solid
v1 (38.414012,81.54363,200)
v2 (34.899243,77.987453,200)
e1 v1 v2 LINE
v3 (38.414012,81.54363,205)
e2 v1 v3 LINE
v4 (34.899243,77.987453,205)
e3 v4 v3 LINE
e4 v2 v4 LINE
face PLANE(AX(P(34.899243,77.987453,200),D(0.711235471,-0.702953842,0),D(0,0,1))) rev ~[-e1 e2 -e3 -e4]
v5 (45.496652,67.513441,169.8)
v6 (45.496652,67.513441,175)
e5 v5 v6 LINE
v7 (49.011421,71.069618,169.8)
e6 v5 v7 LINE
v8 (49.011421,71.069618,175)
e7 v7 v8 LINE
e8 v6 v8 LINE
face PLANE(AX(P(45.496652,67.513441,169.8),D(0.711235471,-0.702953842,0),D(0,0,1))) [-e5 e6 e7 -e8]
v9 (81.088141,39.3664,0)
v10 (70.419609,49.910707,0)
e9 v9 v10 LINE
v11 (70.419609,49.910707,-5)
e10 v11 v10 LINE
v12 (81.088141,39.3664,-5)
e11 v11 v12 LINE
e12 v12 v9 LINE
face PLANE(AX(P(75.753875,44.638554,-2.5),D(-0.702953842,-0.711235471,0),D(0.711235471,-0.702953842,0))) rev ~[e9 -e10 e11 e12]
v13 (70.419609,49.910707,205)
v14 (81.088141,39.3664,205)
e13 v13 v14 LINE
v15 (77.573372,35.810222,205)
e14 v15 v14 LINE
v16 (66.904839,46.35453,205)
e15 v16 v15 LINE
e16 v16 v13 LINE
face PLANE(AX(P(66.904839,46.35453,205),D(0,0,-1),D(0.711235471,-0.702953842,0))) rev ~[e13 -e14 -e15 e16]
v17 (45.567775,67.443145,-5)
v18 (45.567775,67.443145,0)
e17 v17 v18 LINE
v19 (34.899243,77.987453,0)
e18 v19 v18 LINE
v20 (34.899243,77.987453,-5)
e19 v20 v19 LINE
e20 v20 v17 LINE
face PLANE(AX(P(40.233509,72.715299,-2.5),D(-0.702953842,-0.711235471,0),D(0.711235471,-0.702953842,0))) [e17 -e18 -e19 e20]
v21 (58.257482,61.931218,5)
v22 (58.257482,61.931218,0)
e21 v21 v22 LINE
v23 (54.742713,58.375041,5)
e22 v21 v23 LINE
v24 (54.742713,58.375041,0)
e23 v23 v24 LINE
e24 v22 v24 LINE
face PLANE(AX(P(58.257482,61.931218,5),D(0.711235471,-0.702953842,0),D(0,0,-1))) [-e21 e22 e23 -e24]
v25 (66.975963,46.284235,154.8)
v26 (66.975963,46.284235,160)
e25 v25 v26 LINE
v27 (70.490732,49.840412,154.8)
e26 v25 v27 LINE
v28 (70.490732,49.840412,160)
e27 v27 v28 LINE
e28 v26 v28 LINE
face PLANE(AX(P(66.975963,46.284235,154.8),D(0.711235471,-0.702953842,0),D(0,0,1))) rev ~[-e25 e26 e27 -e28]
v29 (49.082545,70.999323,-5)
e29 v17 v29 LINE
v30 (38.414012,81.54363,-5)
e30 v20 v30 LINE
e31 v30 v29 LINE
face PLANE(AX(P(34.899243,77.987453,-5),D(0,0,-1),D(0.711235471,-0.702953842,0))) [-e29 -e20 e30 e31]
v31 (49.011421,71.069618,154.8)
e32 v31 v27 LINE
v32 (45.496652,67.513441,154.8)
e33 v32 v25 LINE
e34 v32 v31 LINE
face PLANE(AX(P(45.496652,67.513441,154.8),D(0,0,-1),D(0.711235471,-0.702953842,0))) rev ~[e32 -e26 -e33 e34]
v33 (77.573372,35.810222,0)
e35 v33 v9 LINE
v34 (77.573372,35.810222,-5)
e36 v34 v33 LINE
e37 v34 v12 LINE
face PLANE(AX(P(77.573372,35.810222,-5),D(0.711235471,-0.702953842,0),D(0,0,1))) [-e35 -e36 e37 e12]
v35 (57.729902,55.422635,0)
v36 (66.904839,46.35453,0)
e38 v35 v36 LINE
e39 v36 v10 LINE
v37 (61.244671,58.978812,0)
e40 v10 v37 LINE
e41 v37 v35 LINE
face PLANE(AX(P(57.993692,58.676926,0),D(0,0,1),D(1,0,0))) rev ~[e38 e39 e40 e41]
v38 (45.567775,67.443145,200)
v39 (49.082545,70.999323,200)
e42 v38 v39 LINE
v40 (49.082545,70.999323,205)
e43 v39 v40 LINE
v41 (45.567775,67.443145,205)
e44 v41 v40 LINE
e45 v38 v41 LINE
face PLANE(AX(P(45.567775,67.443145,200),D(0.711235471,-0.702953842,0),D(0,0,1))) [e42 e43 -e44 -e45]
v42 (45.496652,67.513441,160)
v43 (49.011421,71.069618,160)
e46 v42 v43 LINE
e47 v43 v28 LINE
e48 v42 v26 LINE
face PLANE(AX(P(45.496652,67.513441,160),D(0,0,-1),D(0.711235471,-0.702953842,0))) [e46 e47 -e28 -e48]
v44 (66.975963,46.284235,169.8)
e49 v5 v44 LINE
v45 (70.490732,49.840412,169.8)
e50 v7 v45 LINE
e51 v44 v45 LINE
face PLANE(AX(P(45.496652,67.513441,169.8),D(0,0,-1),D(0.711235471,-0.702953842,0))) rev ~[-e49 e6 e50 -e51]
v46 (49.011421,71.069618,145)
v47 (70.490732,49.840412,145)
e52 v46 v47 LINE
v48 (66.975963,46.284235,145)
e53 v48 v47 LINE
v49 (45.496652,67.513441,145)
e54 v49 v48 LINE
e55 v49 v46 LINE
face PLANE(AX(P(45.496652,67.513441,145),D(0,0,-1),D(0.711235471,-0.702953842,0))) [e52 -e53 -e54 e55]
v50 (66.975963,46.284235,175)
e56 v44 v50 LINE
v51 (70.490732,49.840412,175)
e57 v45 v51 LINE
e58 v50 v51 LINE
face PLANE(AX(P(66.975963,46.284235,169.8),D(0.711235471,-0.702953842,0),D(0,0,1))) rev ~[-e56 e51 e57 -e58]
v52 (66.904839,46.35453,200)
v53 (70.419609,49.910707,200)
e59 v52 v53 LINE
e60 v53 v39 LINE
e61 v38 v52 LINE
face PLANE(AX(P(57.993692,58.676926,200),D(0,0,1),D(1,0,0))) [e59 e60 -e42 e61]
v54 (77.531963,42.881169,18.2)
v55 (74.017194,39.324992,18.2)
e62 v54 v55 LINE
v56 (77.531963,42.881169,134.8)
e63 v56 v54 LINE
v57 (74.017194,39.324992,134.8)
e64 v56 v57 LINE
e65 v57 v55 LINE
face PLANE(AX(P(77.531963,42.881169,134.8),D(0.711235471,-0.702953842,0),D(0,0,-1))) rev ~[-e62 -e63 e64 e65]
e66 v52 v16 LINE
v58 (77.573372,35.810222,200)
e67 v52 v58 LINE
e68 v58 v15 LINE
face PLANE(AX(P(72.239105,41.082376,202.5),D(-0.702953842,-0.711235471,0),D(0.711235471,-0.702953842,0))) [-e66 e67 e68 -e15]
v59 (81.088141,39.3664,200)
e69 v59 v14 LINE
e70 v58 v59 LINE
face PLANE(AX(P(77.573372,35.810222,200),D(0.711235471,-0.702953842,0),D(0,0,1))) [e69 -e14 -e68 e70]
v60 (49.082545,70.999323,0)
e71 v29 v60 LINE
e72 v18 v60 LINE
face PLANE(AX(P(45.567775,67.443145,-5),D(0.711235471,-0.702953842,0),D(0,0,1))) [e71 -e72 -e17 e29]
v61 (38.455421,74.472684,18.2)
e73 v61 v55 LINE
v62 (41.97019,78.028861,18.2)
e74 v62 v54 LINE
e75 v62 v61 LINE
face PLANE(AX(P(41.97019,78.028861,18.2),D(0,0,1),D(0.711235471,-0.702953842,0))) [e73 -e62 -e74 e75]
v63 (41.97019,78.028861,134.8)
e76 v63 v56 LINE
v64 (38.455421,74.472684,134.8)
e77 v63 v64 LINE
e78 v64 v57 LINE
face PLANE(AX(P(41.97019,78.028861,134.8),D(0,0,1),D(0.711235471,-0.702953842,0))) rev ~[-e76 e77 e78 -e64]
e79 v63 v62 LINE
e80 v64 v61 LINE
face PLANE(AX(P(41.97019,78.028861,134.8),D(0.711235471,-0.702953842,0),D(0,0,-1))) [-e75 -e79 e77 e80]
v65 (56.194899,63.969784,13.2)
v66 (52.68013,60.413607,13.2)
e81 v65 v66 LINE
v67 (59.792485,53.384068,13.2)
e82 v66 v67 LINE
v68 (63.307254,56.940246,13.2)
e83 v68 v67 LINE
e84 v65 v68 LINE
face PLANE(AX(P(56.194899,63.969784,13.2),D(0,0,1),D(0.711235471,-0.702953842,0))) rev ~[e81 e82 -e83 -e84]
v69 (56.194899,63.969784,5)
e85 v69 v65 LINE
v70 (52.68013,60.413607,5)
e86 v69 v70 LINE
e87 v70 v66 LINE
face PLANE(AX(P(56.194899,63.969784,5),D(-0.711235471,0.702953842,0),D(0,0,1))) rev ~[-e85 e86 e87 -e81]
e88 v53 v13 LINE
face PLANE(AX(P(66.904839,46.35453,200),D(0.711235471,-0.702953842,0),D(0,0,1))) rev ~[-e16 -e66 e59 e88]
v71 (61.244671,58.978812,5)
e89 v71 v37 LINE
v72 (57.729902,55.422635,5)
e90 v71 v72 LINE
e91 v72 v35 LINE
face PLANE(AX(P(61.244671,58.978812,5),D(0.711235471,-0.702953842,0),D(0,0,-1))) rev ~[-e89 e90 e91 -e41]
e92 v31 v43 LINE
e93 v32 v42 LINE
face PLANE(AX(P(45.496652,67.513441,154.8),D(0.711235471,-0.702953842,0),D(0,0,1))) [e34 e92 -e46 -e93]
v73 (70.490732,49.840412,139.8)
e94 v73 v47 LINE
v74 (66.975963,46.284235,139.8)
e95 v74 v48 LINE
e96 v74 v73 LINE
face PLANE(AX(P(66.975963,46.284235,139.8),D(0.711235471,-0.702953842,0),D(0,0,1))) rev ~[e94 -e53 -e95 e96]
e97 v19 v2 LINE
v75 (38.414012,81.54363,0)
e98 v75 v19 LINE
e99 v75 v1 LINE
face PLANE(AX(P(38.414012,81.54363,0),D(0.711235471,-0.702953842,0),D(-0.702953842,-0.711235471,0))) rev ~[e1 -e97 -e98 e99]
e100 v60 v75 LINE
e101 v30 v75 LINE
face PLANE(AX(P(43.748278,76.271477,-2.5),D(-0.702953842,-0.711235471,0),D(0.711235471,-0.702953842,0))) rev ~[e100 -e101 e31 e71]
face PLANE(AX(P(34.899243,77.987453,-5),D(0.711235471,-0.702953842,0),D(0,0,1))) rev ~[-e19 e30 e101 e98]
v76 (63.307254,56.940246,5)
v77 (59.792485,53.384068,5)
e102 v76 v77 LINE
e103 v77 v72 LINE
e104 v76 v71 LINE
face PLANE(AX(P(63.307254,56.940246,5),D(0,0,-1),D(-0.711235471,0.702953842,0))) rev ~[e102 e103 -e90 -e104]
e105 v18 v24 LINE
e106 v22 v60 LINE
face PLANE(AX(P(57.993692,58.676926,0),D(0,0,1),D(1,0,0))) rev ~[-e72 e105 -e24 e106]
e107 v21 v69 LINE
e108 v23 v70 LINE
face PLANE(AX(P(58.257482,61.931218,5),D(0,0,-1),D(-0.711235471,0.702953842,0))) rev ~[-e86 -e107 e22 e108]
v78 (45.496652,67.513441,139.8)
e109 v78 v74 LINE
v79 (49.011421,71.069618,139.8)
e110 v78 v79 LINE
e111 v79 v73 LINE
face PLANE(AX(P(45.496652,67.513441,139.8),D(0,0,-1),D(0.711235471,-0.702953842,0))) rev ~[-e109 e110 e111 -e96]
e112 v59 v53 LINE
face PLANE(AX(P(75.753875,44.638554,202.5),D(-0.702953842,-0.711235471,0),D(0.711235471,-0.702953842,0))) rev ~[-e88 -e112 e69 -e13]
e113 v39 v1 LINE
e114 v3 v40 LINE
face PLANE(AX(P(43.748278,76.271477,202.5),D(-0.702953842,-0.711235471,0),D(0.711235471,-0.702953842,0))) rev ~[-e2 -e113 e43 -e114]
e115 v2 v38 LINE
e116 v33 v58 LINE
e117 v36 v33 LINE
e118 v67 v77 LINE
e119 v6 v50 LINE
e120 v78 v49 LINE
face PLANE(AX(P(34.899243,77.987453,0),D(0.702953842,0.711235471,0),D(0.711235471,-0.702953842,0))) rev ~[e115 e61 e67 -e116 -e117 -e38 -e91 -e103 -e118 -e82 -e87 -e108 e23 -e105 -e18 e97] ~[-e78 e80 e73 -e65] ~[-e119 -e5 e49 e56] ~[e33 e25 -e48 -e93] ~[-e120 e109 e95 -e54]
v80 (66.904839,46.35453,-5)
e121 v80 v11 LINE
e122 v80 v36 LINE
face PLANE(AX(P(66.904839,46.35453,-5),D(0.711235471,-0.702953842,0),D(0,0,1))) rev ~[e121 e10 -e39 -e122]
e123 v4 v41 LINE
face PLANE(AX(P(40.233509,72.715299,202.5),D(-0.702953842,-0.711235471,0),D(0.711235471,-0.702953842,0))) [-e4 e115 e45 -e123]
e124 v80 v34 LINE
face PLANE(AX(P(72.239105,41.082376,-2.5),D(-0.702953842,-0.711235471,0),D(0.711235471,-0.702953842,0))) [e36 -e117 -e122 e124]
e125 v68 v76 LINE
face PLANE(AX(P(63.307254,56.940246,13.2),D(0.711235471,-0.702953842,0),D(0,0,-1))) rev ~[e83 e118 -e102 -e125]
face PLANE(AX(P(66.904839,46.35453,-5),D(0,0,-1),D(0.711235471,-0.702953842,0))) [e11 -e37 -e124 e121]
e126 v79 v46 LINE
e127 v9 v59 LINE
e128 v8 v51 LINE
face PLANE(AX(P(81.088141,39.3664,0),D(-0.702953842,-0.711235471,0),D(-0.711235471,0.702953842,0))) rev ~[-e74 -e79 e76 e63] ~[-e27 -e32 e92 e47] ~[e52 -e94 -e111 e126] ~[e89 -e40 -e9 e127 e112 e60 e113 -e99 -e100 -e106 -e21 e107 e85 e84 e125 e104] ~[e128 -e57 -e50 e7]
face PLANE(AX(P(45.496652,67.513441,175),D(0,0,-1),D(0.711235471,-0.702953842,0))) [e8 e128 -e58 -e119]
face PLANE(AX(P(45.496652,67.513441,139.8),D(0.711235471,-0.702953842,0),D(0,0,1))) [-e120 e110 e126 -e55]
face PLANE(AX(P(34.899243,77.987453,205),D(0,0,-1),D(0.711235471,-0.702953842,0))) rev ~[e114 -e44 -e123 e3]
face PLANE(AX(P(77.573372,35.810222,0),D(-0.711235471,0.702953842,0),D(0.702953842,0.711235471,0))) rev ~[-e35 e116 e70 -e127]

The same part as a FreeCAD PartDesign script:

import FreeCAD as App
import Part
import Sketcher
from FreeCAD import Vector


def add_polygon(sketch, points):
    """Adds a closed chain of lines whose ends are joined by coincident constraints."""
    first, n = sketch.GeometryCount, len(points)
    for a, b in zip(points, points[1:] + points[:1]):
        sketch.addGeometry(Part.LineSegment(App.Vector(*a, 0), App.Vector(*b, 0)), False)
    for i in range(n):
        sketch.addConstraint(Sketcher.Constraint("Coincident", first + i, 2, first + (i + 1) % n, 1))

doc = App.newDocument("Part")
body = doc.addObject("PartDesign::Body", "Body")

# Sketch on XY plane
sketch1 = body.newObject("Sketcher::SketchObject", "Sketch")
sketch1.AttachmentSupport = (doc.getObject("XY_Plane"), [""])
sketch1.MapMode = "FlatFace"
add_polygon(sketch1, [(35, 78), (78, 36), (81, 39), (38, 82)])  # lines 0-3
sketch1.addConstraint(Sketcher.Constraint("Perpendicular", 0, 1))
sketch1.addConstraint(Sketcher.Constraint("Perpendicular", 1, 2))
sketch1.addConstraint(Sketcher.Constraint("Perpendicular", 2, 3))
sketch1.addConstraint(Sketcher.Constraint("Distance", 0, 60.0))
sketch1.addConstraint(Sketcher.Constraint("Distance", 1, 5.0))
sketch1.addConstraint(Sketcher.Constraint("DistanceY", -1, 1, 1, 2, 39.3664))
sketch1.addConstraint(Sketcher.Constraint("DistanceX", -1, 1, 0, 2, 77.573372))
sketch1.addConstraint(Sketcher.Constraint("DistanceX", -1, 1, 1, 2, 81.088141))
pad1 = body.newObject("PartDesign::Pad", "Pad")
pad1.Profile = sketch1
pad1.Length = 200

# Sketch on an angled plane
sketch2 = body.newObject("Sketcher::SketchObject", "Sketch001")
sketch2.Placement = App.Placement(Vector(56.236307, 56.898838, 0), App.Rotation(Vector(0.711235471, -0.702953842, 0), Vector(0, 0, 0.999999999), Vector(-0.702953842, -0.711235471, 0), "ZXY"))
add_polygon(sketch2, [(-30, 205), (-30, 200), (-15, 200), (-15, 205)])  # lines 0-3
add_polygon(sketch2, [(15, 205), (15, 200), (30, 200), (30, 205)])  # lines 4-7
add_polygon(sketch2, [(15, 0), (15, -5), (30, -5), (30, 0)])  # lines 8-11
add_polygon(sketch2, [(-30, 0), (-30, -5), (-15, -5), (-15, 0)])  # lines 12-15
sketch2.addConstraint(Sketcher.Constraint("Vertical", 0))
sketch2.addConstraint(Sketcher.Constraint("Horizontal", 1))
sketch2.addConstraint(Sketcher.Constraint("Vertical", 2))
sketch2.addConstraint(Sketcher.Constraint("Horizontal", 3))
sketch2.addConstraint(Sketcher.Constraint("Vertical", 4))
sketch2.addConstraint(Sketcher.Constraint("Horizontal", 5))
sketch2.addConstraint(Sketcher.Constraint("Vertical", 6))
sketch2.addConstraint(Sketcher.Constraint("Horizontal", 7))
sketch2.addConstraint(Sketcher.Constraint("Vertical", 8))
sketch2.addConstraint(Sketcher.Constraint("Horizontal", 9))
sketch2.addConstraint(Sketcher.Constraint("Vertical", 10))
sketch2.addConstraint(Sketcher.Constraint("Horizontal", 11))
sketch2.addConstraint(Sketcher.Constraint("Vertical", 12))
sketch2.addConstraint(Sketcher.Constraint("Horizontal", 13))
sketch2.addConstraint(Sketcher.Constraint("Vertical", 14))
sketch2.addConstraint(Sketcher.Constraint("Horizontal", 15))
sketch2.addConstraint(Sketcher.Constraint("Symmetric", 11, 2, 14, 2, -1, 1))
sketch2.addConstraint(Sketcher.Constraint("Symmetric", 1, 2, 4, 2, -2))
sketch2.addConstraint(Sketcher.Constraint("Symmetric", 3, 2, 6, 2, -2))
sketch2.addConstraint(Sketcher.Constraint("Symmetric", 9, 2, 12, 2, -2))
sketch2.addConstraint(Sketcher.Constraint("PointOnObject", 10, 2, -1))
sketch2.addConstraint(Sketcher.Constraint("Vertical", 7, 2, 8, 2))
sketch2.addConstraint(Sketcher.Constraint("Vertical", 6, 2, 9, 2))
sketch2.addConstraint(Sketcher.Constraint("Equal", 6, 8))
sketch2.addConstraint(Sketcher.Constraint("DistanceX", 1, 1, 1, 2, 15.0))
sketch2.addConstraint(Sketcher.Constraint("DistanceY", 0, 2, 0, 1, 5.0))
sketch2.addConstraint(Sketcher.Constraint("DistanceX", 0, 2, -1, 1, 30.0))
sketch2.addConstraint(Sketcher.Constraint("DistanceY", -1, 1, 0, 2, 200.0))
pad2 = body.newObject("PartDesign::Pad", "Pad001")
pad2.Profile = sketch2
pad2.Length = 5
pad2.Reversed = True

# Sketch on an angled plane
sketch3 = body.newObject("Sketcher::SketchObject", "Sketch002")
sketch3.Placement = App.Placement(Vector(56.236307, 56.898838, 0), App.Rotation(Vector(0.711235471, -0.702953842, 0), Vector(0, 0, 0.999999999), Vector(-0.702953842, -0.711235471, 0), "ZXY"))
add_polygon(sketch3, [(-15, 175), (-15, 170), (15, 170), (15, 175)])  # lines 0-3
add_polygon(sketch3, [(-15, 160), (-15, 155), (15, 155), (15, 160)])  # lines 4-7
add_polygon(sketch3, [(-15, 145), (-15, 140), (15, 140), (15, 145)])  # lines 8-11
sketch3.addConstraint(Sketcher.Constraint("Vertical", 0))
sketch3.addConstraint(Sketcher.Constraint("Horizontal", 1))
sketch3.addConstraint(Sketcher.Constraint("Vertical", 2))
sketch3.addConstraint(Sketcher.Constraint("Horizontal", 3))
sketch3.addConstraint(Sketcher.Constraint("Vertical", 4))
sketch3.addConstraint(Sketcher.Constraint("Horizontal", 5))
sketch3.addConstraint(Sketcher.Constraint("Vertical", 6))
sketch3.addConstraint(Sketcher.Constraint("Horizontal", 7))
sketch3.addConstraint(Sketcher.Constraint("Vertical", 8))
sketch3.addConstraint(Sketcher.Constraint("Horizontal", 9))
sketch3.addConstraint(Sketcher.Constraint("Vertical", 10))
sketch3.addConstraint(Sketcher.Constraint("Horizontal", 11))
sketch3.addConstraint(Sketcher.Constraint("Vertical", 3, 2, 4, 2))
sketch3.addConstraint(Sketcher.Constraint("Vertical", 2, 2, 5, 2))
sketch3.addConstraint(Sketcher.Constraint("Vertical", 7, 2, 8, 2))
sketch3.addConstraint(Sketcher.Constraint("Vertical", 6, 2, 9, 2))
sketch3.addConstraint(Sketcher.Constraint("Equal", 2, 4))
sketch3.addConstraint(Sketcher.Constraint("Equal", 6, 8))
sketch3.addConstraint(Sketcher.Constraint("DistanceX", 1, 1, 1, 2, 30.2))
sketch3.addConstraint(Sketcher.Constraint("DistanceY", 0, 2, 0, 1, 5.2))
sketch3.addConstraint(Sketcher.Constraint("DistanceY", -1, 1, 2, 2, 175.0))
sketch3.addConstraint(Sketcher.Constraint("DistanceY", -1, 1, 6, 2, 160.0))
sketch3.addConstraint(Sketcher.Constraint("DistanceY", -1, 1, 10, 2, 145.0))
sketch3.addConstraint(Sketcher.Constraint("DistanceX", 0, 2, -1, 1, 15.1))
pocket1 = body.newObject("PartDesign::Pocket", "Pocket")
pocket1.Profile = sketch3
pocket1.Length = 5

# Sketch on an angled plane
sketch4 = body.newObject("Sketcher::SketchObject", "Sketch003")
sketch4.Placement = App.Placement(Vector(59.751077, 60.455015, 0), App.Rotation(Vector(0.711235471, -0.702953842, 0), Vector(0, 0, -0.999999999), Vector(0.702953842, 0.711235471, 0), "ZXY"))
add_polygon(sketch4, [(-5, -5), (-5, -13.2), (5, -13.2), (5, -5), (2.1, -5), (2.1, 0), (-2.1, 0), (-2.1, -5)])  # lines 0-7
sketch4.addConstraint(Sketcher.Constraint("Vertical", 0))
sketch4.addConstraint(Sketcher.Constraint("Horizontal", 1))
sketch4.addConstraint(Sketcher.Constraint("Vertical", 2))
sketch4.addConstraint(Sketcher.Constraint("Horizontal", 3))
sketch4.addConstraint(Sketcher.Constraint("Vertical", 4))
sketch4.addConstraint(Sketcher.Constraint("Horizontal", 5))
sketch4.addConstraint(Sketcher.Constraint("Vertical", 6))
sketch4.addConstraint(Sketcher.Constraint("Horizontal", 7))
sketch4.addConstraint(Sketcher.Constraint("Symmetric", 4, 2, 5, 2, -1, 1))
sketch4.addConstraint(Sketcher.Constraint("Symmetric", 2, 2, 7, 2, -2))
sketch4.addConstraint(Sketcher.Constraint("DistanceX", 1, 1, 1, 2, 10.0))
sketch4.addConstraint(Sketcher.Constraint("DistanceY", 4, 1, 4, 2, 5.0))
sketch4.addConstraint(Sketcher.Constraint("DistanceX", 3, 2, 3, 1, 2.9))
sketch4.addConstraint(Sketcher.Constraint("DistanceY", 0, 2, 0, 1, 8.2))
pocket2 = body.newObject("PartDesign::Pocket", "Pocket001")
pocket2.Profile = sketch4
pocket2.Length = 10

# Sketch on an angled plane
sketch5 = body.newObject("Sketcher::SketchObject", "Sketch004")
sketch5.Placement = App.Placement(Vector(59.751077, 60.455015, 0), App.Rotation(Vector(0.711235471, -0.702953842, 0), Vector(0, 0, -0.999999999), Vector(0.702953842, 0.711235471, 0), "ZXY"))
add_polygon(sketch5, [(-25, -18), (-25, -135), (25, -135), (25, -18)])  # lines 0-3
sketch5.addConstraint(Sketcher.Constraint("Vertical", 0))
sketch5.addConstraint(Sketcher.Constraint("Horizontal", 1))
sketch5.addConstraint(Sketcher.Constraint("Vertical", 2))
sketch5.addConstraint(Sketcher.Constraint("Horizontal", 3))
sketch5.addConstraint(Sketcher.Constraint("DistanceX", 1, 1, 1, 2, 50.0))
sketch5.addConstraint(Sketcher.Constraint("DistanceY", 0, 2, 0, 1, 116.6))
sketch5.addConstraint(Sketcher.Constraint("DistanceX", 0, 2, -1, 1, 25.0))
sketch5.addConstraint(Sketcher.Constraint("DistanceY", 0, 2, -1, 1, 134.8))
pocket3 = body.newObject("PartDesign::Pocket", "Pocket002")
pocket3.Profile = sketch5
pocket3.Length = 10

doc.recompute()
